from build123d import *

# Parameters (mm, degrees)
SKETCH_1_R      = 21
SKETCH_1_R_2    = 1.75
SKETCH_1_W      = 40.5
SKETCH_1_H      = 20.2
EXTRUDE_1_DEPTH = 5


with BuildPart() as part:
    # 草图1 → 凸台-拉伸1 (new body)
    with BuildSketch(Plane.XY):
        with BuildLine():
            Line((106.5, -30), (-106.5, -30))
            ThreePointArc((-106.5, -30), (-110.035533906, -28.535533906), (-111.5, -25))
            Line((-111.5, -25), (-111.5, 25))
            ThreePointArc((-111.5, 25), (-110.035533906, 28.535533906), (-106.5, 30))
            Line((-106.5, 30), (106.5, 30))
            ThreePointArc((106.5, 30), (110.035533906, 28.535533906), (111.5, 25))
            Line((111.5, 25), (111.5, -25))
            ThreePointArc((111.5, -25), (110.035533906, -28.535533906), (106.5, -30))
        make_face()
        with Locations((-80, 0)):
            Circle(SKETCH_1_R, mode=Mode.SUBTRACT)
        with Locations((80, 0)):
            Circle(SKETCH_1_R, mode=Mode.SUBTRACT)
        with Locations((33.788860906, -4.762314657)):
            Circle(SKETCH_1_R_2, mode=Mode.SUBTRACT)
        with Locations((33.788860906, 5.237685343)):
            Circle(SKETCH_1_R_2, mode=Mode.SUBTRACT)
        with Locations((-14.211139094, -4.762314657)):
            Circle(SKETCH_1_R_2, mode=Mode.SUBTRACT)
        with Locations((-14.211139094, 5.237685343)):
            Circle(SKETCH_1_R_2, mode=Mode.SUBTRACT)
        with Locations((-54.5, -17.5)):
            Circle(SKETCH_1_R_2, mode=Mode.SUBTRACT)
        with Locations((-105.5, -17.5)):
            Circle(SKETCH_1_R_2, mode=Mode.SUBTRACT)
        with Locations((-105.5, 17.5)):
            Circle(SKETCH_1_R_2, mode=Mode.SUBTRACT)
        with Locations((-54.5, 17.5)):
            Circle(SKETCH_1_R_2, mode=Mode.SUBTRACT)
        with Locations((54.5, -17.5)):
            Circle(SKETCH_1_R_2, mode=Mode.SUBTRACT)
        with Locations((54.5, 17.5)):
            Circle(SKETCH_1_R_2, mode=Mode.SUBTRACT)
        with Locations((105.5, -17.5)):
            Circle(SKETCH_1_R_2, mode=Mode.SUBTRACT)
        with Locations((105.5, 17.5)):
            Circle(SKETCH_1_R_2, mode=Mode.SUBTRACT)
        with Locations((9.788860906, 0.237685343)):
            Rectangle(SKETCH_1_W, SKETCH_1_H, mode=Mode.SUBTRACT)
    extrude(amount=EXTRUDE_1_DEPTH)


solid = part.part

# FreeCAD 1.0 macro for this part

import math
import FreeCAD as App
import Part
import Sketcher
Q = App.Units.Quantity


def add_polygon(sketch, points):
    """Adds a closed chain of lines whose ends are joined by coincident constraints."""
    first, n = sketch.GeometryCount, len(points)
    for a, b in zip(points, points[1:] + points[:1]):
        sketch.addGeometry(Part.LineSegment(App.Vector(*a, 0), App.Vector(*b, 0)), False)
    for i in range(n):
        sketch.addConstraint(Sketcher.Constraint("Coincident", first + i, 2, first + (i + 1) % n, 1))

doc = App.newDocument("Part")
body = doc.addObject("PartDesign::Body", "Body")

# Sketch on XY plane
sketch1 = doc.addObject("Sketcher::SketchObject", "Sketch")
body.addObject(sketch1)
sketch1.AttachmentSupport = (doc.XY_Plane, [""])
sketch1.MapMode = "FlatFace"
sketch1.addGeometry(Part.LineSegment(App.Vector(-106.5, -30, 0), App.Vector(106.5, -30, 0)), False)  # 0
sketch1.addGeometry(Part.ArcOfCircle(Part.Circle(App.Vector(106.5, -25, 0), App.Vector(0, 0, 1), 5), math.radians(-90), math.radians(0)), False)  # 1
sketch1.addGeometry(Part.LineSegment(App.Vector(111.5, -25, 0), App.Vector(111.5, 25, 0)), False)  # 2
sketch1.addGeometry(Part.ArcOfCircle(Part.Circle(App.Vector(106.5, 25, 0), App.Vector(0, 0, 1), 5), math.radians(0), math.radians(90)), False)  # 3
sketch1.addGeometry(Part.LineSegment(App.Vector(106.5, 30, 0), App.Vector(-106.5, 30, 0)), False)  # 4
sketch1.addGeometry(Part.ArcOfCircle(Part.Circle(App.Vector(-106.5, 25, 0), App.Vector(0, 0, 1), 5), math.radians(90), math.radians(180)), False)  # 5
sketch1.addGeometry(Part.LineSegment(App.Vector(-111.5, 25, 0), App.Vector(-111.5, -25, 0)), False)  # 6
sketch1.addGeometry(Part.ArcOfCircle(Part.Circle(App.Vector(-106.5, -25, 0), App.Vector(0, 0, 1), 5), math.radians(180), math.radians(270)), False)  # 7
sketch1.addGeometry(Part.Circle(App.Vector(105.5, -17.5, 0), App.Vector(0, 0, 1), 1.8), False)  # 8
sketch1.addGeometry(Part.Circle(App.Vector(54.5, -17.5, 0), App.Vector(0, 0, 1), 1.8), False)  # 9
sketch1.addGeometry(Part.Circle(App.Vector(33.8, -4.8, 0), App.Vector(0, 0, 1), 1.8), False)  # 10
sketch1.addGeometry(Part.Circle(App.Vector(-54.5, -17.5, 0), App.Vector(0, 0, 1), 1.8), False)  # 11
sketch1.addGeometry(Part.Circle(App.Vector(-105.5, -17.5, 0), App.Vector(0, 0, 1), 1.8), False)  # 12
sketch1.addGeometry(Part.Circle(App.Vector(-14.2, -4.8, 0), App.Vector(0, 0, 1), 1.8), False)  # 13
sketch1.addGeometry(Part.Circle(App.Vector(80, 0, 0), App.Vector(0, 0, 1), 21), False)  # 14
sketch1.addGeometry(Part.Circle(App.Vector(33.8, 5.2, 0), App.Vector(0, 0, 1), 1.8), False)  # 15
add_polygon(sketch1, [(-10.5, -9.9), (-10.5, 10.3), (30, 10.3), (30, -9.9)])  # lines 16-19
sketch1.addGeometry(Part.Circle(App.Vector(105.5, 17.5, 0), App.Vector(0, 0, 1), 1.8), False)  # 20
sketch1.addGeometry(Part.Circle(App.Vector(54.5, 17.5, 0), App.Vector(0, 0, 1), 1.8), False)  # 21
sketch1.addGeometry(Part.Circle(App.Vector(-14.2, 5.2, 0), App.Vector(0, 0, 1), 1.8), False)  # 22
sketch1.addGeometry(Part.Circle(App.Vector(-80, 0, 0), App.Vector(0, 0, 1), 21), False)  # 23
sketch1.addGeometry(Part.Circle(App.Vector(-54.5, 17.5, 0), App.Vector(0, 0, 1), 1.8), False)  # 24
sketch1.addGeometry(Part.Circle(App.Vector(-105.5, 17.5, 0), App.Vector(0, 0, 1), 1.8), False)  # 25
sketch1.addConstraint([
    Sketcher.Constraint("Tangent", 0, 2, 1, 1),
    Sketcher.Constraint("Tangent", 1, 2, 2, 1),
    Sketcher.Constraint("Tangent", 2, 2, 3, 1),
    Sketcher.Constraint("Tangent", 3, 2, 4, 1),
    Sketcher.Constraint("Tangent", 4, 2, 5, 1),
    Sketcher.Constraint("Tangent", 5, 2, 6, 1),
    Sketcher.Constraint("Tangent", 6, 2, 7, 1),
    Sketcher.Constraint("Tangent", 7, 2, 0, 1),
    Sketcher.Constraint("Horizontal", 0),
    Sketcher.Constraint("Vertical", 2),
    Sketcher.Constraint("Horizontal", 4),
    Sketcher.Constraint("Vertical", 6),
    Sketcher.Constraint("Vertical", 16),
    Sketcher.Constraint("Horizontal", 17),
    Sketcher.Constraint("Vertical", 18),
    Sketcher.Constraint("Horizontal", 19),
    Sketcher.Constraint("Equal", 1, 3),
    Sketcher.Constraint("Equal", 3, 5),
    Sketcher.Constraint("Equal", 5, 7),
    Sketcher.Constraint("Equal", 8, 9),
    Sketcher.Constraint("Equal", 9, 10),
    Sketcher.Constraint("Equal", 10, 11),
    Sketcher.Constraint("Equal", 11, 12),
    Sketcher.Constraint("Equal", 12, 13),
    Sketcher.Constraint("Equal", 13, 15),
    Sketcher.Constraint("Equal", 15, 20),
    Sketcher.Constraint("Equal", 20, 21),
    Sketcher.Constraint("Equal", 21, 22),
    Sketcher.Constraint("Equal", 14, 23),
    Sketcher.Constraint("Equal", 22, 24),
    Sketcher.Constraint("Equal", 24, 25),
    Sketcher.Constraint("Symmetric", 1, 3, 5, 3, -1, 1),
    Sketcher.Constraint("Symmetric", 12, 3, 20, 3, -1, 1),
    Sketcher.Constraint("Symmetric", 11, 3, 21, 3, -1, 1),
    Sketcher.Constraint("Symmetric", 14, 3, 23, 3, -1, 1),
    Sketcher.Constraint("Symmetric", 9, 3, 24, 3, -1, 1),
    Sketcher.Constraint("Symmetric", 8, 3, 25, 3, -1, 1),
    Sketcher.Constraint("Symmetric", 9, 3, 11, 3, -2),
    Sketcher.Constraint("Symmetric", 8, 3, 12, 3, -2),
    Sketcher.Constraint("PointOnObject", 14, 3, -1),
    Sketcher.Constraint("Horizontal", 8, 3, 9, 3),
    Sketcher.Constraint("Horizontal", 10, 3, 13, 3),
    Sketcher.Constraint("Horizontal", 15, 3, 22, 3),
    Sketcher.Constraint("Vertical", 10, 3, 15, 3),
    Sketcher.Constraint("Vertical", 13, 3, 22, 3),
    Sketcher.Constraint("Diameter", 14, Q("42 mm")),
    Sketcher.Constraint("Radius", 1, Q("5 mm")),
    Sketcher.Constraint("Diameter", 8, Q("3.5 mm")),
    Sketcher.Constraint("DistanceX", 0, 1, 0, 2, Q("213 mm")),
    Sketcher.Constraint("DistanceY", 2, 1, 2, 2, Q("50 mm")),
    Sketcher.Constraint("DistanceX", 17, 1, 17, 2, Q("40.5 mm")),
    Sketcher.Constraint("DistanceY", 16, 1, 16, 2, Q("20.2 mm")),
    Sketcher.Constraint("DistanceX", -1, 1, 14, 3, Q("80 mm")),
    Sketcher.Constraint("DistanceX", 8, 3, 1, 3, Q("1 mm")),
    Sketcher.Constraint("DistanceX", 9, 3, 8, 3, Q("51 mm")),
    Sketcher.Constraint("DistanceX", 13, 3, 10, 3, Q("48 mm")),
    Sketcher.Constraint("DistanceY", 10, 3, 15, 3, Q("10 mm")),
    Sketcher.Constraint("DistanceY", 8, 3, 20, 3, Q("35 mm")),
    Sketcher.Constraint("DistanceY", 22, 3, 16, 2, Q("5.1 mm")),
    Sketcher.Constraint("DistanceX", 22, 3, 16, 2, Q("3.75 mm")),
    Sketcher.Constraint("DistanceX", -1, 1, 10, 3, Q("33.788861 mm")),
    Sketcher.Constraint("DistanceY", 10, 3, -1, 1, Q("4.762315 mm")),
])
pad1 = doc.addObject("PartDesign::Pad", "Pad")
body.addObject(pad1)
pad1.Profile = sketch1
pad1.Length = 5

doc.recompute()
